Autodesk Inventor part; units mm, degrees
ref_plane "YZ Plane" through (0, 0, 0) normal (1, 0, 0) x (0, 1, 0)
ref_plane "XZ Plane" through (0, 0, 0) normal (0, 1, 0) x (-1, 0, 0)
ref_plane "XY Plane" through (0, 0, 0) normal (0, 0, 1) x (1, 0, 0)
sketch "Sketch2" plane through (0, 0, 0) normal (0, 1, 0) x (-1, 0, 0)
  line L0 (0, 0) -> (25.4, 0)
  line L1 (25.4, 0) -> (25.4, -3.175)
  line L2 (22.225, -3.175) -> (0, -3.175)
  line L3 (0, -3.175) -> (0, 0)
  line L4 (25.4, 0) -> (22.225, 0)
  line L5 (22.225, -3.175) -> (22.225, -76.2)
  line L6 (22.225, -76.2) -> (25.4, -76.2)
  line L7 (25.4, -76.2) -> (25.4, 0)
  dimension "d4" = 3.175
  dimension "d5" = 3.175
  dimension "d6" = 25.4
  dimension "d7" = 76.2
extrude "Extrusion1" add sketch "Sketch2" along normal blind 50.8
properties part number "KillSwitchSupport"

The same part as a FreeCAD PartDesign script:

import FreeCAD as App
import Part
import Sketcher
Q = App.Units.Quantity


def add_polygon(sketch, points):
    """Adds a closed chain of lines whose ends are joined by coincident constraints."""
    first, n = sketch.GeometryCount, len(points)
    for a, b in zip(points, points[1:] + points[:1]):
        sketch.addGeometry(Part.LineSegment(App.Vector(*a, 0), App.Vector(*b, 0)), False)
    for i in range(n):
        sketch.addConstraint(Sketcher.Constraint("Coincident", first + i, 2, first + (i + 1) % n, 1))

doc = App.newDocument("Part")
body = doc.addObject("PartDesign::Body", "Body")

# Sketch on XZ plane
sketch1 = body.newObject("Sketcher::SketchObject", "Sketch")
sketch1.AttachmentSupport = (doc.getObject("XZ_Plane"), [""])
sketch1.MapMode = "FlatFace"
add_polygon(sketch1, [(-25.4, 0), (0, 0), (0, -3.2), (-22.2, -3.2), (-22.2, -76.2), (-25.4, -76.2)])  # lines 0-5
sketch1.addConstraint(Sketcher.Constraint("Horizontal", 0))
sketch1.addConstraint(Sketcher.Constraint("Vertical", 1))
sketch1.addConstraint(Sketcher.Constraint("Horizontal", 2))
sketch1.addConstraint(Sketcher.Constraint("Vertical", 3))
sketch1.addConstraint(Sketcher.Constraint("Horizontal", 4))
sketch1.addConstraint(Sketcher.Constraint("Vertical", 5))
sketch1.addConstraint(Sketcher.Constraint("Coincident", 0, 2, -1, 1))
sketch1.addConstraint(Sketcher.Constraint("Equal", 4, 1))
sketch1.addConstraint(Sketcher.Constraint("DistanceX", 0, 1, 0, 2, Q("1 in")))
sketch1.addConstraint(Sketcher.Constraint("DistanceY", 5, 1, 5, 2, Q("3 in")))
sketch1.addConstraint(Sketcher.Constraint("DistanceX", 4, 2, 4, 1, Q("0.125 in")))
pad1 = body.newObject("PartDesign::Pad", "Pad")
pad1.Profile = sketch1
pad1.Length = Q("2 in")
pad1.Reversed = True

doc.recompute()
